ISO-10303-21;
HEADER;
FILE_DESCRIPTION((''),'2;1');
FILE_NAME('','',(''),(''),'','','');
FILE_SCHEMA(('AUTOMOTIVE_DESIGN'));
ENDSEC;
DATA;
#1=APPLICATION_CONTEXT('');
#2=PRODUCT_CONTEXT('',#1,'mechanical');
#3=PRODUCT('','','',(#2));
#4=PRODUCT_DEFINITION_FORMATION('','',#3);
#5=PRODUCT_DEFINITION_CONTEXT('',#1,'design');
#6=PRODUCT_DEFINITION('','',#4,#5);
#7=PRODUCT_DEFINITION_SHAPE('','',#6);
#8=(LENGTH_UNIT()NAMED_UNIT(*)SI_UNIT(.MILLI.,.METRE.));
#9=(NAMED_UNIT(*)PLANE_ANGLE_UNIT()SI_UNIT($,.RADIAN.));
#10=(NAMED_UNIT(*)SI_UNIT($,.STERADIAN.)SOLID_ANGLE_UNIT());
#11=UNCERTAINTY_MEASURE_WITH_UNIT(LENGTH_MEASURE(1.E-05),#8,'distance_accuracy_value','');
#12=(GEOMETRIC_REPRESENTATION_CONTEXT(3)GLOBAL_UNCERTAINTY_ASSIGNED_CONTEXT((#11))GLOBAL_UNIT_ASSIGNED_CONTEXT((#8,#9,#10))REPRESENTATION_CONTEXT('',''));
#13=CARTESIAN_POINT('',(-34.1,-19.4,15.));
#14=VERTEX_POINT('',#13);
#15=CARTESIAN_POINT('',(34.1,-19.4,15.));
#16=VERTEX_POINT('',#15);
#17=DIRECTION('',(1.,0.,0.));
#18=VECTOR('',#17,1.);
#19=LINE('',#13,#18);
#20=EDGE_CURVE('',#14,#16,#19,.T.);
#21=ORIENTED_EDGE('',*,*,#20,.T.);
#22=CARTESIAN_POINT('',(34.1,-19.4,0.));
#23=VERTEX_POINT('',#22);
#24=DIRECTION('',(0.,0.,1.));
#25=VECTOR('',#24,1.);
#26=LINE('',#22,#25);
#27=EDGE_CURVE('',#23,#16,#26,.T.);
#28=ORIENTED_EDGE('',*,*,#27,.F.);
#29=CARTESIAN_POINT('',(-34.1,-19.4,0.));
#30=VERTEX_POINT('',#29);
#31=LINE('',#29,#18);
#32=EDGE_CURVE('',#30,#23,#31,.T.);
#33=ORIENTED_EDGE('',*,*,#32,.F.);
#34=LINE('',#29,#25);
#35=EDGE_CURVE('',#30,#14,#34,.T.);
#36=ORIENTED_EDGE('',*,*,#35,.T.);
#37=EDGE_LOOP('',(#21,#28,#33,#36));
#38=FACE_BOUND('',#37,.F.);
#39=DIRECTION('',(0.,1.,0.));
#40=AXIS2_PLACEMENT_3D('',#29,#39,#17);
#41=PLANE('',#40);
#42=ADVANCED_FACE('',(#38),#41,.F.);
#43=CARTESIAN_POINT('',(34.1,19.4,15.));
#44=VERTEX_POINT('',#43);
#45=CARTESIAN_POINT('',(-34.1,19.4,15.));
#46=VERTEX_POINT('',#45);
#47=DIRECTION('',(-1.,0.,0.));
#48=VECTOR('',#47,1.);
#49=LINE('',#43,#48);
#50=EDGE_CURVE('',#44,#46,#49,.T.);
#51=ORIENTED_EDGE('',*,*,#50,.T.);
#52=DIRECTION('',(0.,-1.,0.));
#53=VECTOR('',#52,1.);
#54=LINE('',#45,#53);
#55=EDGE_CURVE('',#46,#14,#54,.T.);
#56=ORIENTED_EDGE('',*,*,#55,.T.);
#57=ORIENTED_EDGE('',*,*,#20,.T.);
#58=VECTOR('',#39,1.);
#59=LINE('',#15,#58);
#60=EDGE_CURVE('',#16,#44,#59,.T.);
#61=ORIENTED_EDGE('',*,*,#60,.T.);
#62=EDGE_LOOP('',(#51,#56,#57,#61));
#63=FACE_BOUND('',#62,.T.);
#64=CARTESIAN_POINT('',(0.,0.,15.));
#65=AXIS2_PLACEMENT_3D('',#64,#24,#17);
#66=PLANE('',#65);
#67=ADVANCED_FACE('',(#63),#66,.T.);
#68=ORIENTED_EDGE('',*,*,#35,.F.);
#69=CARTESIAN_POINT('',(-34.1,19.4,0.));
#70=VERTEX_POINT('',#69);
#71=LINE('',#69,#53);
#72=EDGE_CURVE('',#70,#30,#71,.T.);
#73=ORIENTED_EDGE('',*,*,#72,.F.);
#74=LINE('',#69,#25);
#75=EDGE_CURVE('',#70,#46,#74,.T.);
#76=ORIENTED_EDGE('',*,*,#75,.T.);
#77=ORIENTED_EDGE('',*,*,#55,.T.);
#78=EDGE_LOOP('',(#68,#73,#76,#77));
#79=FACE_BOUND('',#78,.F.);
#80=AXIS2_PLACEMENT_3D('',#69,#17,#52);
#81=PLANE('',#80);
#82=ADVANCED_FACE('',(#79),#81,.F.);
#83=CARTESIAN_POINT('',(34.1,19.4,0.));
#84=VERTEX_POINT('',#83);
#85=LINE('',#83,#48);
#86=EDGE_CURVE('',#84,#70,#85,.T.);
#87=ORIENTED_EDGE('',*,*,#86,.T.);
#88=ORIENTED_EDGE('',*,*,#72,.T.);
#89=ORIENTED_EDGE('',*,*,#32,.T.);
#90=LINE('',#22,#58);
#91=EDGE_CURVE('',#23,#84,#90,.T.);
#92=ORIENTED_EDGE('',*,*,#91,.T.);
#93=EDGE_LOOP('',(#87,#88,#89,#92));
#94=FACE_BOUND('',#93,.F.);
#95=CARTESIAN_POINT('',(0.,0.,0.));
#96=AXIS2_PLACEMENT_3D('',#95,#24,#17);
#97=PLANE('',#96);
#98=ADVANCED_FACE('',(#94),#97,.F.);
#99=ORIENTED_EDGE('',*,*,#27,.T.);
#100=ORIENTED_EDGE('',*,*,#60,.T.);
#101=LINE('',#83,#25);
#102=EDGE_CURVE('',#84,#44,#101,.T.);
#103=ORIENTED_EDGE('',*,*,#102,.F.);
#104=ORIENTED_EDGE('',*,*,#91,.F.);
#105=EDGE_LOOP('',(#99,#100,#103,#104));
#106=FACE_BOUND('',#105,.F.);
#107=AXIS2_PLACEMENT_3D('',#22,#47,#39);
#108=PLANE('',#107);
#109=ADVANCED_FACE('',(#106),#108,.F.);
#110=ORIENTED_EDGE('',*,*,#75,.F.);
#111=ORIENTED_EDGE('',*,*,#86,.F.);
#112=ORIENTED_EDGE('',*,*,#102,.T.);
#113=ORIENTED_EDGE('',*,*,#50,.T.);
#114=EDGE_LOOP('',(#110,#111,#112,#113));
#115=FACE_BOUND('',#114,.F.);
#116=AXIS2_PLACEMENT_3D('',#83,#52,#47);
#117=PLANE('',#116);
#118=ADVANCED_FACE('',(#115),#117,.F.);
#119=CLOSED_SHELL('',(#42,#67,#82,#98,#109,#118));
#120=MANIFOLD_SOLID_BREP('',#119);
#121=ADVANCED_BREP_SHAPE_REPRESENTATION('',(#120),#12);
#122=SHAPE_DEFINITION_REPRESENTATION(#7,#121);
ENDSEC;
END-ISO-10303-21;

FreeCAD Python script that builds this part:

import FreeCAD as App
import Part
import Sketcher

doc = App.newDocument("Part")
body = doc.addObject("PartDesign::Body", "Body")

# Sketch on XY plane
sketch1 = body.newObject("Sketcher::SketchObject", "Sketch")
sketch1.AttachmentSupport = (doc.getObject("XY_Plane"), [""])
sketch1.MapMode = "FlatFace"
sketch1.addGeometry(Part.LineSegment(App.Vector(-34, 19, 0), App.Vector(-34, -19, 0)), False)
sketch1.addGeometry(Part.LineSegment(App.Vector(-34, -19, 0), App.Vector(34, -19, 0)), False)
sketch1.addGeometry(Part.LineSegment(App.Vector(34, -19, 0), App.Vector(34, 19, 0)), False)
sketch1.addGeometry(Part.LineSegment(App.Vector(34, 19, 0), App.Vector(-34, 19, 0)), False)
sketch1.addConstraint(Sketcher.Constraint("Coincident", 0, 2, 1, 1))
sketch1.addConstraint(Sketcher.Constraint("Coincident", 1, 2, 2, 1))
sketch1.addConstraint(Sketcher.Constraint("Coincident", 2, 2, 3, 1))
sketch1.addConstraint(Sketcher.Constraint("Coincident", 3, 2, 0, 1))
sketch1.addConstraint(Sketcher.Constraint("Vertical", 0))
sketch1.addConstraint(Sketcher.Constraint("Horizontal", 1))
sketch1.addConstraint(Sketcher.Constraint("Vertical", 2))
sketch1.addConstraint(Sketcher.Constraint("Horizontal", 3))
sketch1.addConstraint(Sketcher.Constraint("Symmetric", 0, 2, 2, 2, -1, 1))
sketch1.addConstraint(Sketcher.Constraint("DistanceX", 1, 1, 1, 2, 68.2))
sketch1.addConstraint(Sketcher.Constraint("DistanceY", 0, 2, 0, 1, 38.8))
pad1 = body.newObject("PartDesign::Pad", "Pad")
pad1.Profile = sketch1
pad1.Length = 15

doc.recompute()
